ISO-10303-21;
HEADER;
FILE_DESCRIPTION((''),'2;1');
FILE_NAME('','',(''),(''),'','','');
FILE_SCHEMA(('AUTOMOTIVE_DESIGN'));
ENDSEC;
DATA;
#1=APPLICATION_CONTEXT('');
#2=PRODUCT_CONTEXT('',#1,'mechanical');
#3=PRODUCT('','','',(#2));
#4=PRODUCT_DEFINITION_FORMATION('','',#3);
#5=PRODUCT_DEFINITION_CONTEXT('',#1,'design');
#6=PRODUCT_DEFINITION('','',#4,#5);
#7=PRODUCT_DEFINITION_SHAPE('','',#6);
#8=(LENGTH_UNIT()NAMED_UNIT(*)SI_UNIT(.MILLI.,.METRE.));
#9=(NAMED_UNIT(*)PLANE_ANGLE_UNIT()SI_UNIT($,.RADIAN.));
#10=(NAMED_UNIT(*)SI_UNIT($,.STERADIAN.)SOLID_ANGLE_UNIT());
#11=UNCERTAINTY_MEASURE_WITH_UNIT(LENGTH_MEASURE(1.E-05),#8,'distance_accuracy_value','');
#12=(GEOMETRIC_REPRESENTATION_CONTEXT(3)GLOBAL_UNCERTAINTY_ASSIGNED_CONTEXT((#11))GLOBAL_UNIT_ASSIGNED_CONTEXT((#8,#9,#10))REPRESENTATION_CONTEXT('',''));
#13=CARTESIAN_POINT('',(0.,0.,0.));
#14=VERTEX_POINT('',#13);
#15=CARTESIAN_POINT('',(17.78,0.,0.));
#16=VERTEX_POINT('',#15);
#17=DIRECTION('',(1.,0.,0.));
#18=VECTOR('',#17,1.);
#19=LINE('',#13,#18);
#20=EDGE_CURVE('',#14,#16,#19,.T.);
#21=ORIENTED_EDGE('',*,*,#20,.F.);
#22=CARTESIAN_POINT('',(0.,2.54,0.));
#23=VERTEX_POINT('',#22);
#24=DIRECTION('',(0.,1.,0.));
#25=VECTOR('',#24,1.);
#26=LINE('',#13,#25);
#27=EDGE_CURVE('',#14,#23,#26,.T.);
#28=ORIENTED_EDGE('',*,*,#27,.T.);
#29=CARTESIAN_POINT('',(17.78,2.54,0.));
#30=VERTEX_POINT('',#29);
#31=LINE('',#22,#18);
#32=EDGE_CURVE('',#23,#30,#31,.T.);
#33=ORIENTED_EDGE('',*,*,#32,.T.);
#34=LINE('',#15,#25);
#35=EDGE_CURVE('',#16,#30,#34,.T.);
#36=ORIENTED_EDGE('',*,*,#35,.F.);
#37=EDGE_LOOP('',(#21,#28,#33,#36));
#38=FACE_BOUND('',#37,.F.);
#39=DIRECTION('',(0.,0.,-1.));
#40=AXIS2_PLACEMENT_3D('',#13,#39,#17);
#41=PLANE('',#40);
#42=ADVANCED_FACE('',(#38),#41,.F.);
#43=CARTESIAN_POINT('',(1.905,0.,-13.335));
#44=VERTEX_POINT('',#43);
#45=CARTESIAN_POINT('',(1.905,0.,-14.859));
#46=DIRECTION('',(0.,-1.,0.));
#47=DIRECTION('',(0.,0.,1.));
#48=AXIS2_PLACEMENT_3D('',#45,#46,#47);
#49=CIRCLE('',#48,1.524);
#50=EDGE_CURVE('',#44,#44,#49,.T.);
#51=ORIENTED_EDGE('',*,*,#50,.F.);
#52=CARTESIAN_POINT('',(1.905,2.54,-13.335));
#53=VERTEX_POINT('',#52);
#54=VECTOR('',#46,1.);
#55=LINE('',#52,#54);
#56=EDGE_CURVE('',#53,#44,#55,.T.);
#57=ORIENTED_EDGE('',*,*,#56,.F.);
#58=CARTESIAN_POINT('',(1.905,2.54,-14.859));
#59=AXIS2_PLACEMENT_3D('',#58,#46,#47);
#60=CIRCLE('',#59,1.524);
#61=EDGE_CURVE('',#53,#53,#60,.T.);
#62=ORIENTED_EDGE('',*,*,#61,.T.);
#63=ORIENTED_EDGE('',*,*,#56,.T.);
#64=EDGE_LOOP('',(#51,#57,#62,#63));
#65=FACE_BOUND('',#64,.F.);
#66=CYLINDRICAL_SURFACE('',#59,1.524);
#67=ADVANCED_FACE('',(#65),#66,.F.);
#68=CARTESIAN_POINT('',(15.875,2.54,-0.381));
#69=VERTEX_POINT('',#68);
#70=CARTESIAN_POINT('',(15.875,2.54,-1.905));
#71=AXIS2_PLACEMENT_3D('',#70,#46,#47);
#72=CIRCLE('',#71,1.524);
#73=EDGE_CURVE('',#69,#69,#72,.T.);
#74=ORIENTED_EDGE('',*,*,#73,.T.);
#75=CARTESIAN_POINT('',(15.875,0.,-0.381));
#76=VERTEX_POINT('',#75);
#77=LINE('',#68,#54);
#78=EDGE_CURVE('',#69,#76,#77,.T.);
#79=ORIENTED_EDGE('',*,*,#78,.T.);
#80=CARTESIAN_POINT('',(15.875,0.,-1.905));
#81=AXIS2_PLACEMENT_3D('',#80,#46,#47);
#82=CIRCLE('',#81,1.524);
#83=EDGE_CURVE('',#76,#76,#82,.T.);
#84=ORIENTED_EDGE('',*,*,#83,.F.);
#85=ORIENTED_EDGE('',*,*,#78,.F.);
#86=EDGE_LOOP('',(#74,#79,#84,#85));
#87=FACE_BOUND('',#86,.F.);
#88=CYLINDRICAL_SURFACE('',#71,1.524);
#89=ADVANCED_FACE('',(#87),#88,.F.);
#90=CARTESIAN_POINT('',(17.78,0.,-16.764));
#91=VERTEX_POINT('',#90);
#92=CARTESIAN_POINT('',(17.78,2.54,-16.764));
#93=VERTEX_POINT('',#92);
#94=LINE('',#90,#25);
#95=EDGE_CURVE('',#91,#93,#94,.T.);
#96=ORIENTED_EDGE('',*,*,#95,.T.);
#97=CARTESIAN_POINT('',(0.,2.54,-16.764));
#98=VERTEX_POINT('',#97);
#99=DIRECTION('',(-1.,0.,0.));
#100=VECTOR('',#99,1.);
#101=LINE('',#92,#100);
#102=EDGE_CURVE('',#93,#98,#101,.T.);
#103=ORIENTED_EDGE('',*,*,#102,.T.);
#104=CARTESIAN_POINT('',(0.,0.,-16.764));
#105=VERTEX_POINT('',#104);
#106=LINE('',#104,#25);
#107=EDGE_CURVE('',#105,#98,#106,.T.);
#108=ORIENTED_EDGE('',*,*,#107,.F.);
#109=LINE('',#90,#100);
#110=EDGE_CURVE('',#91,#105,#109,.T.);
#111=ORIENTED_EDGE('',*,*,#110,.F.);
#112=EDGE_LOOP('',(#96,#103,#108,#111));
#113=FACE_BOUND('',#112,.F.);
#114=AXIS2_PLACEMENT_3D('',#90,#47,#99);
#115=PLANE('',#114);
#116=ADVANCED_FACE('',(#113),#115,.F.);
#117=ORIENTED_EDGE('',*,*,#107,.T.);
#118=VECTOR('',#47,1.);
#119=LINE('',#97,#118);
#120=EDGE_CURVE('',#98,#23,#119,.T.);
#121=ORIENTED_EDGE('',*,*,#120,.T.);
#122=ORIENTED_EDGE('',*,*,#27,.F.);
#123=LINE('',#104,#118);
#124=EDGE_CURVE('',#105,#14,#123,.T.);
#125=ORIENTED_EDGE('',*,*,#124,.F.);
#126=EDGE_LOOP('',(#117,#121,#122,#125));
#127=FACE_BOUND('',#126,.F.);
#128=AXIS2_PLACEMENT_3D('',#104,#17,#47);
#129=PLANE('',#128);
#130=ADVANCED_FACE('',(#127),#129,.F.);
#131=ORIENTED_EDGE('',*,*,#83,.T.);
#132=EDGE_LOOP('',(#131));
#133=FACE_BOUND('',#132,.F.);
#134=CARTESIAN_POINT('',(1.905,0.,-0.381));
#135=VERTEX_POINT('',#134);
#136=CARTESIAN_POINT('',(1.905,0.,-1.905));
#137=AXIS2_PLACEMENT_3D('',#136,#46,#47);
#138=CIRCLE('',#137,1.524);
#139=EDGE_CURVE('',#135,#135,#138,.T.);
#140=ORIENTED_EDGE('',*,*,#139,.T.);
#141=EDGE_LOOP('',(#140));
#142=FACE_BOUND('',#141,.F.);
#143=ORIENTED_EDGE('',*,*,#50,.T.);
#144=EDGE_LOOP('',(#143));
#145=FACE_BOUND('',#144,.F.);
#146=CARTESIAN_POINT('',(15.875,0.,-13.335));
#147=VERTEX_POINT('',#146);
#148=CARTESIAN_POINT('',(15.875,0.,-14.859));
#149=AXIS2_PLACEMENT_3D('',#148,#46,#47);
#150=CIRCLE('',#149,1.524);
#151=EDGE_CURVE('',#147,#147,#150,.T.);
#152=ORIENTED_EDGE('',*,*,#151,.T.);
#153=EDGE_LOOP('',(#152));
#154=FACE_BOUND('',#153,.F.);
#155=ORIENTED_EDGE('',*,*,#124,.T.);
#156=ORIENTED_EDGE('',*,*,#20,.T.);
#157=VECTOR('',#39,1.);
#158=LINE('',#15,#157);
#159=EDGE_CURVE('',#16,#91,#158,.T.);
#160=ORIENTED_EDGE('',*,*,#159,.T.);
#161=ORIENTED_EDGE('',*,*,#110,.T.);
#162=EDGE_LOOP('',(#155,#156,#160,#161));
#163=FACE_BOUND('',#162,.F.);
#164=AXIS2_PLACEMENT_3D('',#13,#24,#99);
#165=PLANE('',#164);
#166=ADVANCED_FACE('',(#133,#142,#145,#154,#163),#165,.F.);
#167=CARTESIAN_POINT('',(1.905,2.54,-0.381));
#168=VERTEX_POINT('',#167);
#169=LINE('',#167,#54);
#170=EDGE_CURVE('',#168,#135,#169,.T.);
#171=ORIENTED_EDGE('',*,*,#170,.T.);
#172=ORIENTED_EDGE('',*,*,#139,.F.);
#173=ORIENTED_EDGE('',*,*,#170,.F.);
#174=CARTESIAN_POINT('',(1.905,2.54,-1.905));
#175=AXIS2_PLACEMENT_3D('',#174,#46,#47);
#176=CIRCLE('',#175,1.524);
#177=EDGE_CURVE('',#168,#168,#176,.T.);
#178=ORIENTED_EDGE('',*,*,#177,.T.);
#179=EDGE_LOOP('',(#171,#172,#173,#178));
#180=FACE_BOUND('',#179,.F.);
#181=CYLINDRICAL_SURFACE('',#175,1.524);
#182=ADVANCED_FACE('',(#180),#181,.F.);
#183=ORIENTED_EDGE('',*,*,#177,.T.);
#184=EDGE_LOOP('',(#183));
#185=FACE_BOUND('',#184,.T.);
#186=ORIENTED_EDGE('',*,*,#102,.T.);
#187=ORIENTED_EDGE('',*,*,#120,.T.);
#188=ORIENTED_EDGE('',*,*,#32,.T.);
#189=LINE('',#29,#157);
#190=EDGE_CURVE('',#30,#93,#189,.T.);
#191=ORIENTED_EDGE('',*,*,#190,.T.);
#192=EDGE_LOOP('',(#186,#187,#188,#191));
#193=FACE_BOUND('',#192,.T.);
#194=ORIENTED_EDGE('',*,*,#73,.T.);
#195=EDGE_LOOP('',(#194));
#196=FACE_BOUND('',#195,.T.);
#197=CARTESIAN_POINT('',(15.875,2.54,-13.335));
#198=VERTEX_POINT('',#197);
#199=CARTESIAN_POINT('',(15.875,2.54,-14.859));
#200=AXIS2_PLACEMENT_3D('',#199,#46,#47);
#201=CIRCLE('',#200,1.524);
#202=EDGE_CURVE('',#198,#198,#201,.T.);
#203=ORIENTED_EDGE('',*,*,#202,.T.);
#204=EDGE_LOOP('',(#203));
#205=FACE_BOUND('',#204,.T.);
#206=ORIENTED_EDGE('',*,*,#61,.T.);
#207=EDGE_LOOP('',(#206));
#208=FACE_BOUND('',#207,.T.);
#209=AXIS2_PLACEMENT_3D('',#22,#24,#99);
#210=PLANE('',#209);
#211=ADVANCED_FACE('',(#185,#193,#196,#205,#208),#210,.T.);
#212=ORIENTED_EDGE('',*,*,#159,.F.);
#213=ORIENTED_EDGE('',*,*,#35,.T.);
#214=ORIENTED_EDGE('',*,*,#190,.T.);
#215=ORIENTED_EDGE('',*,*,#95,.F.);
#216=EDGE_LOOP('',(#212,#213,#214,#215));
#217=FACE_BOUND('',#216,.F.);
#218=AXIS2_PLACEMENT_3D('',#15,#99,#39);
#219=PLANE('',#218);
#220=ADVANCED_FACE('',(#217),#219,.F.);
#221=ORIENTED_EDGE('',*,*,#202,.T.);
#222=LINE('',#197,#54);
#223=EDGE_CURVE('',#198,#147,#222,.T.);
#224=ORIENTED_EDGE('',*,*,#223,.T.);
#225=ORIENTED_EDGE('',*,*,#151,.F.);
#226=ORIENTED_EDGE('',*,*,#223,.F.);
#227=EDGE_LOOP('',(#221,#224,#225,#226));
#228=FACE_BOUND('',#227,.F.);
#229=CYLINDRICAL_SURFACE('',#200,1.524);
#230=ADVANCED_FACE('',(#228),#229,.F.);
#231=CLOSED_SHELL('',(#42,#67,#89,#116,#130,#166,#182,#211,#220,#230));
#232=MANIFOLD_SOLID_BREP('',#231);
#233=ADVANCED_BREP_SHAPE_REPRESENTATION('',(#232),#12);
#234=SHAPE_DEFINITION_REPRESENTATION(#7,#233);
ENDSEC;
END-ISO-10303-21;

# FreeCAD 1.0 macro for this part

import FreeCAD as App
import Part
import Sketcher
Q = App.Units.Quantity

doc = App.newDocument("Part")
body = doc.addObject("PartDesign::Body", "Body")

# Sketch on XZ plane
sketch1 = body.newObject("Sketcher::SketchObject", "Sketch")
sketch1.AttachmentSupport = (doc.getObject("XZ_Plane"), [""])
sketch1.MapMode = "FlatFace"
sketch1.addGeometry([
    Part.LineSegment(App.Vector(0, -17, 0), App.Vector(0, 0, 0)),
    Part.LineSegment(App.Vector(0, 0, 0), App.Vector(18, 0, 0)),
    Part.LineSegment(App.Vector(18, 0, 0), App.Vector(18, -17, 0)),
    Part.LineSegment(App.Vector(18, -17, 0), App.Vector(0, -17, 0)),
], False)
sketch1.addConstraint([
    Sketcher.Constraint("Coincident", 0, 2, 1, 1),
    Sketcher.Constraint("Coincident", 1, 2, 2, 1),
    Sketcher.Constraint("Coincident", 2, 2, 3, 1),
    Sketcher.Constraint("Coincident", 3, 2, 0, 1),
    Sketcher.Constraint("Vertical", 0),
    Sketcher.Constraint("Horizontal", 1),
    Sketcher.Constraint("Vertical", 2),
    Sketcher.Constraint("Horizontal", 3),
    Sketcher.Constraint("Coincident", 0, 2, -1, 1),
    Sketcher.Constraint("DistanceX", 1, 1, 1, 2, Q("0.7 in")),
    Sketcher.Constraint("DistanceY", 0, 1, 0, 2, Q("0.66 in")),
])
pad1 = body.newObject("PartDesign::Pad", "Pad")
pad1.Profile = sketch1
pad1.Length = Q("0.1 in")
pad1.Reversed = True

# Sketch on XZ plane
sketch2 = body.newObject("Sketcher::SketchObject", "Sketch001")
sketch2.AttachmentSupport = (doc.getObject("XZ_Plane"), [""])
sketch2.MapMode = "FlatFace"
sketch2.AttachmentOffset = App.Placement(App.Vector(0, 0, -0.1 * 25.4), App.Rotation())
sketch2.addGeometry([
    Part.Circle(App.Vector(1.9, -1.9, 0), App.Vector(0, 0, 1), 1.5),
    Part.Circle(App.Vector(15.9, -1.9, 0), App.Vector(0, 0, 1), 1.5),
    Part.Circle(App.Vector(15.9, -14.9, 0), App.Vector(0, 0, 1), 1.5),
    Part.Circle(App.Vector(1.9, -14.9, 0), App.Vector(0, 0, 1), 1.5),
], False)
sketch2.addConstraint([
    Sketcher.Constraint("Equal", 0, 1),
    Sketcher.Constraint("Equal", 1, 2),
    Sketcher.Constraint("Equal", 2, 3),
    Sketcher.Constraint("Horizontal", 0, 3, 1, 3),
    Sketcher.Constraint("Horizontal", 2, 3, 3, 3),
    Sketcher.Constraint("Vertical", 1, 3, 2, 3),
    Sketcher.Constraint("Vertical", 0, 3, 3, 3),
    Sketcher.Constraint("Diameter", 0, Q("0.12 in")),
    Sketcher.Constraint("DistanceX", 0, 3, 1, 3, Q("0.55 in")),
    Sketcher.Constraint("DistanceY", 2, 3, 1, 3, Q("0.51 in")),
    Sketcher.Constraint("DistanceX", -1, 1, 0, 3, Q("0.075 in")),
    Sketcher.Constraint("DistanceY", 0, 3, -1, 1, Q("0.075 in")),
])
doc.recompute()
hole = body.newObject("PartDesign::Hole", "Hole")
hole.Profile = sketch2
hole.ThreadType = "None"
hole.Diameter = Q("0.12 in")
hole.DepthType = "Dimension"
hole.Depth = Q("0.4 in")
hole.DrillPoint = "Angled"
hole.DrillPointAngle = 118
hole.Reversed = True

doc.recompute()
